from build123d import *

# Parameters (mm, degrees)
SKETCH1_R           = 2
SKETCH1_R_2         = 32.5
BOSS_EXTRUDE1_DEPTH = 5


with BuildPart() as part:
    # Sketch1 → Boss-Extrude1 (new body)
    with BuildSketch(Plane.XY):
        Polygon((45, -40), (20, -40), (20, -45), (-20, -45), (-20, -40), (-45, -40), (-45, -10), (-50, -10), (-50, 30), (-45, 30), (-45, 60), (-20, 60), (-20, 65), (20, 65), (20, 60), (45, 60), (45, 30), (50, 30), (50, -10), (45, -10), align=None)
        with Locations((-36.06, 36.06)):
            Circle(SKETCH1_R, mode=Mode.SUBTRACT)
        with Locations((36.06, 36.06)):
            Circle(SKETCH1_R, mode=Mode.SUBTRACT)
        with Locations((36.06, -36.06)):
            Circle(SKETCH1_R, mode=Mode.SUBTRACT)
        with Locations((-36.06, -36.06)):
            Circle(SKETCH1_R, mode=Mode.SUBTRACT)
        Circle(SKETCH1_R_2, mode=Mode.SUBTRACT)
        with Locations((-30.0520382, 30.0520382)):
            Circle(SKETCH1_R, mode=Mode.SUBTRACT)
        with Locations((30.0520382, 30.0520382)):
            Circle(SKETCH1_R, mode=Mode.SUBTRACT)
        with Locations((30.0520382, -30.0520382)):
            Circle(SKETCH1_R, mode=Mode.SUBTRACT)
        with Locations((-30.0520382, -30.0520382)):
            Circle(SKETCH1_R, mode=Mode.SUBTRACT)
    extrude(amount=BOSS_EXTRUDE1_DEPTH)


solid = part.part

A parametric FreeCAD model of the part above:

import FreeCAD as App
import Part
import Sketcher
from FreeCAD import Vector


def add_polygon(sketch, points):
    """Adds a closed chain of lines whose ends are joined by coincident constraints."""
    first, n = sketch.GeometryCount, len(points)
    for a, b in zip(points, points[1:] + points[:1]):
        sketch.addGeometry(Part.LineSegment(App.Vector(*a, 0), App.Vector(*b, 0)), False)
    for i in range(n):
        sketch.addConstraint(Sketcher.Constraint("Coincident", first + i, 2, first + (i + 1) % n, 1))

doc = App.newDocument("Part")
body = doc.addObject("PartDesign::Body", "Body")

# Sketch on XY plane
sketch1 = body.newObject("Sketcher::SketchObject", "Sketch")
sketch1.AttachmentSupport = (doc.getObject("XY_Plane"), [""])
sketch1.MapMode = "FlatFace"
add_polygon(sketch1, [(20, -40), (45, -40), (45, -10), (50, -10), (50, 30), (45, 30), (45, 60), (20, 60), (20, 65), (-20, 65), (-20, 60), (-45, 60), (-45, 30), (-50, 30), (-50, -10), (-45, -10), (-45, -40), (-20, -40), (-20, -45), (20, -45)])  # lines 0-19
sketch1.addGeometry(Part.Circle(Vector(36.1, -36.1, 0), Vector(0, 0, 1), 2), False)  # 20
sketch1.addGeometry(Part.Circle(Vector(30.1, -30.1, 0), Vector(0, 0, 1), 2), False)  # 21
sketch1.addGeometry(Part.Circle(Vector(-36.1, -36.1, 0), Vector(0, 0, 1), 2), False)  # 22
sketch1.addGeometry(Part.Circle(Vector(-30.1, -30.1, 0), Vector(0, 0, 1), 2), False)  # 23
sketch1.addGeometry(Part.Circle(Vector(30.1, 30.1, 0), Vector(0, 0, 1), 2), False)  # 24
sketch1.addGeometry(Part.Circle(Vector(36.1, 36.1, 0), Vector(0, 0, 1), 2), False)  # 25
sketch1.addGeometry(Part.Circle(Vector(0, 0, 0), Vector(0, 0, 1), 32.5), False)  # 26
sketch1.addGeometry(Part.Circle(Vector(-30.1, 30.1, 0), Vector(0, 0, 1), 2), False)  # 27
sketch1.addGeometry(Part.Circle(Vector(-36.1, 36.1, 0), Vector(0, 0, 1), 2), False)  # 28
sketch1.addConstraint([
    Sketcher.Constraint("Horizontal", 0),
    Sketcher.Constraint("Vertical", 1),
    Sketcher.Constraint("Horizontal", 2),
    Sketcher.Constraint("Vertical", 3),
    Sketcher.Constraint("Horizontal", 4),
    Sketcher.Constraint("Vertical", 5),
    Sketcher.Constraint("Horizontal", 6),
    Sketcher.Constraint("Vertical", 7),
    Sketcher.Constraint("Horizontal", 8),
    Sketcher.Constraint("Vertical", 9),
    Sketcher.Constraint("Horizontal", 10),
    Sketcher.Constraint("Vertical", 11),
    Sketcher.Constraint("Horizontal", 12),
    Sketcher.Constraint("Vertical", 13),
    Sketcher.Constraint("Horizontal", 14),
    Sketcher.Constraint("Vertical", 15),
    Sketcher.Constraint("Horizontal", 16),
    Sketcher.Constraint("Vertical", 17),
    Sketcher.Constraint("Horizontal", 18),
    Sketcher.Constraint("Vertical", 19),
    Sketcher.Constraint("Coincident", 26, 3, -1, 1),
    Sketcher.Constraint("Equal", 20, 21),
    Sketcher.Constraint("Equal", 21, 22),
    Sketcher.Constraint("Equal", 22, 23),
    Sketcher.Constraint("Equal", 23, 24),
    Sketcher.Constraint("Equal", 24, 25),
    Sketcher.Constraint("Equal", 25, 27),
    Sketcher.Constraint("Equal", 27, 28),
    Sketcher.Constraint("Symmetric", 23, 3, 24, 3, -1, 1),
    Sketcher.Constraint("Symmetric", 22, 3, 25, 3, -1, 1),
    Sketcher.Constraint("Symmetric", 21, 3, 27, 3, -1, 1),
    Sketcher.Constraint("Symmetric", 20, 3, 28, 3, -1, 1),
    Sketcher.Constraint("Symmetric", 20, 3, 22, 3, -2),
    Sketcher.Constraint("Symmetric", 21, 3, 23, 3, -2),
    Sketcher.Constraint("Symmetric", 6, 2, 9, 2, -2),
    Sketcher.Constraint("Symmetric", 4, 2, 11, 2, -2),
    Sketcher.Constraint("Symmetric", 2, 2, 13, 2, -2),
    Sketcher.Constraint("Symmetric", 0, 2, 15, 2, -2),
    Sketcher.Constraint("Vertical", 1, 2, 4, 2),
    Sketcher.Constraint("Vertical", 9, 2, 16, 2),
    Sketcher.Constraint("Vertical", 7, 2, 18, 2),
    Sketcher.Constraint("Equal", 18, 3),
    Sketcher.Constraint("Equal", 1, 5),
    Sketcher.Constraint("Equal", 14, 7),
    Sketcher.Constraint("Equal", 9, 17),
    Sketcher.Constraint("Diameter", 20, 4.0),
    Sketcher.Constraint("Diameter", 26, 65.0),
    Sketcher.Constraint("DistanceX", 0, 1, 0, 2, 25.0),
    Sketcher.Constraint("DistanceX", 2, 1, 2, 2, 5.0),
    Sketcher.Constraint("DistanceX", 8, 2, 8, 1, 40.0),
    Sketcher.Constraint("DistanceY", 1, 1, 1, 2, 30.0),
    Sketcher.Constraint("DistanceY", 0, 2, -1, 1, 40.0),
    Sketcher.Constraint("DistanceX", -1, 1, 20, 3, 36.06),
    Sketcher.Constraint("DistanceY", 20, 3, -1, 1, 36.06),
    Sketcher.Constraint("DistanceX", -1, 1, 21, 3, 30.052038),
    Sketcher.Constraint("DistanceY", 21, 3, -1, 1, 30.052038),
])
pad1 = body.newObject("PartDesign::Pad", "Pad")
pad1.Profile = sketch1
pad1.Length = 5

doc.recompute()
